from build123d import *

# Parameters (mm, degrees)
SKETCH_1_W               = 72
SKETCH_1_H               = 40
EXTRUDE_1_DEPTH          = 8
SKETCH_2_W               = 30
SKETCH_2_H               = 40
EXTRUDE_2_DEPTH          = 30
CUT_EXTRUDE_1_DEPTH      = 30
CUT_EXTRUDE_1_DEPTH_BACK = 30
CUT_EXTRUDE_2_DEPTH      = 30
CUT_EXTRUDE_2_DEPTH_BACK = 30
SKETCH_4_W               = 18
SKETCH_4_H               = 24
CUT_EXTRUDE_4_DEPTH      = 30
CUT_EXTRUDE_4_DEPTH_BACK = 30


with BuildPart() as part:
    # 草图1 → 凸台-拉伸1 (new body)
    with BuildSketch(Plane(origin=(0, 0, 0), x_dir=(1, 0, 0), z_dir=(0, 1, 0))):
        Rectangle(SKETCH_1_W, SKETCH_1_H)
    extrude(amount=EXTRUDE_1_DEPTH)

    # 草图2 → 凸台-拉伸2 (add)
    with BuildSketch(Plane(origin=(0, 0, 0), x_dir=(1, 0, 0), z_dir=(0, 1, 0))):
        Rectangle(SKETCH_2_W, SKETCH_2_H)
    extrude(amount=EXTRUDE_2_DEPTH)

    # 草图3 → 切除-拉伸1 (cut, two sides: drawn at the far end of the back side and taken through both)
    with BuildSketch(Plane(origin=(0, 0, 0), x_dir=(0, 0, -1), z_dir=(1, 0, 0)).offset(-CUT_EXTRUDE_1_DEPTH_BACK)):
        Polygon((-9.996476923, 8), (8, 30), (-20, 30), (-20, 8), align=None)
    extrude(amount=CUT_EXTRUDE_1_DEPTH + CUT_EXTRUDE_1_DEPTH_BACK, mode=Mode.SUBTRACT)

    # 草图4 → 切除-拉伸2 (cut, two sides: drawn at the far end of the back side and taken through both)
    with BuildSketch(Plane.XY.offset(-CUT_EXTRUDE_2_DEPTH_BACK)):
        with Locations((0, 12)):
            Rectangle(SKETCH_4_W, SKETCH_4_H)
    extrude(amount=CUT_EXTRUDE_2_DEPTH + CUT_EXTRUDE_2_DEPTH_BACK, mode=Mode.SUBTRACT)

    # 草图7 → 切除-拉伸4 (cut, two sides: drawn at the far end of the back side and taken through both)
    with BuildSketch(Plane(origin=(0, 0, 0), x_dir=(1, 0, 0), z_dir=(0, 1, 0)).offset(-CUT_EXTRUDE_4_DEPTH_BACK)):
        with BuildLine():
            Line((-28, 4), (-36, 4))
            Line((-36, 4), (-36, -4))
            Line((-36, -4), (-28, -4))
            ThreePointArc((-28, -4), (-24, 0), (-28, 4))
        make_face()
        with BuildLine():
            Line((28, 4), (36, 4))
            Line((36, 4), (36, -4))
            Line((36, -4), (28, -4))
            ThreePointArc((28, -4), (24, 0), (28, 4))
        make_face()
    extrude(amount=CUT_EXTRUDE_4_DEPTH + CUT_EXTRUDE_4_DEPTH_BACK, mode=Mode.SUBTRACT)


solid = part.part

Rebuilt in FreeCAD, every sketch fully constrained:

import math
import FreeCAD as App
import Part
import Sketcher
Q = App.Units.Quantity


def add_polygon(sketch, points):
    """Adds a closed chain of lines whose ends are joined by coincident constraints."""
    first, n = sketch.GeometryCount, len(points)
    for a, b in zip(points, points[1:] + points[:1]):
        sketch.addGeometry(Part.LineSegment(App.Vector(*a, 0), App.Vector(*b, 0)), False)
    for i in range(n):
        sketch.addConstraint(Sketcher.Constraint("Coincident", first + i, 2, first + (i + 1) % n, 1))

doc = App.newDocument("Part")
body = doc.addObject("PartDesign::Body", "Body")

sketch1 = body.newObject("Sketcher::SketchObject", "Sketch")
sketch1.AttachmentSupport = (doc.getObject("XZ_Plane"), [""])
sketch1.MapMode = "FlatFace"
add_polygon(sketch1, [(-36, -20), (-36, 20), (36, 20), (36, -20)])
sketch1.addConstraint([
    Sketcher.Constraint("Vertical", 0),
    Sketcher.Constraint("Horizontal", 1),
    Sketcher.Constraint("Vertical", 2),
    Sketcher.Constraint("Horizontal", 3),
    Sketcher.Constraint("Symmetric", 0, 2, 2, 2, -1, 1),
    Sketcher.Constraint("DistanceX", 1, 1, 1, 2, Q("72 mm")),
    Sketcher.Constraint("DistanceY", 0, 1, 0, 2, Q("40 mm")),
])
pad1 = body.newObject("PartDesign::Pad", "Pad")
pad1.Profile = sketch1
pad1.Length = 8
pad1.Reversed = True

sketch2 = body.newObject("Sketcher::SketchObject", "Sketch001")
sketch2.AttachmentSupport = (doc.getObject("XZ_Plane"), [""])
sketch2.MapMode = "FlatFace"
add_polygon(sketch2, [(-15, -20), (-15, 20), (15, 20), (15, -20)])
sketch2.addConstraint([
    Sketcher.Constraint("Vertical", 0),
    Sketcher.Constraint("Horizontal", 1),
    Sketcher.Constraint("Vertical", 2),
    Sketcher.Constraint("Horizontal", 3),
    Sketcher.Constraint("Symmetric", 0, 2, 2, 2, -1, 1),
    Sketcher.Constraint("DistanceX", 1, 1, 1, 2, Q("30 mm")),
    Sketcher.Constraint("DistanceY", 0, 1, 0, 2, Q("40 mm")),
])
pad2 = body.newObject("PartDesign::Pad", "Pad001")
pad2.Profile = sketch2
pad2.Length = 30
pad2.Reversed = True

sketch3 = body.newObject("Sketcher::SketchObject", "Sketch002")
sketch3.AttachmentSupport = (doc.getObject("YZ_Plane"), [""])
sketch3.MapMode = "FlatFace"
add_polygon(sketch3, [(8, 10), (30, -8), (30, 20), (8, 20)])
sketch3.addConstraint([
    Sketcher.Constraint("Vertical", 1),
    Sketcher.Constraint("Horizontal", 2),
    Sketcher.Constraint("Vertical", 3),
    Sketcher.Constraint("DistanceX", 2, 2, 2, 1, Q("22 mm")),
    Sketcher.Constraint("DistanceY", 1, 1, 1, 2, Q("28 mm")),
    Sketcher.Constraint("DistanceX", -1, 1, 0, 2, Q("30 mm")),
    Sketcher.Constraint("DistanceY", 0, 2, -1, 1, Q("8 mm")),
    Sketcher.Constraint("Distance", 0, Q("28.42311 mm")),
])
pocket1 = body.newObject("PartDesign::Pocket", "Pocket")
pocket1.Profile = sketch3
pocket1.Type = "ThroughAll"
pocket1.Midplane = True

sketch4 = body.newObject("Sketcher::SketchObject", "Sketch003")
sketch4.AttachmentSupport = (doc.getObject("XY_Plane"), [""])
sketch4.MapMode = "FlatFace"
add_polygon(sketch4, [(-9, 24), (-9, 0), (9, 0), (9, 24)])
sketch4.addConstraint([
    Sketcher.Constraint("Vertical", 0),
    Sketcher.Constraint("Horizontal", 1),
    Sketcher.Constraint("Vertical", 2),
    Sketcher.Constraint("Horizontal", 3),
    Sketcher.Constraint("Symmetric", 0, 2, 1, 2, -1, 1),
    Sketcher.Constraint("DistanceX", 1, 1, 1, 2, Q("18 mm")),
    Sketcher.Constraint("DistanceY", 0, 2, 0, 1, Q("24 mm")),
])
pocket2 = body.newObject("PartDesign::Pocket", "Pocket001")
pocket2.Profile = sketch4
pocket2.Type = "ThroughAll"
pocket2.Midplane = True

sketch5 = body.newObject("Sketcher::SketchObject", "Sketch004")
sketch5.AttachmentSupport = (doc.getObject("XZ_Plane"), [""])
sketch5.MapMode = "FlatFace"
sketch5.addGeometry([
    Part.LineSegment(App.Vector(-28, -4, 0), App.Vector(-36, -4, 0)),
    Part.LineSegment(App.Vector(-36, -4, 0), App.Vector(-36, 4, 0)),
    Part.LineSegment(App.Vector(-36, 4, 0), App.Vector(-28, 4, 0)),
    Part.ArcOfCircle(Part.Circle(App.Vector(-28, 0, 0), App.Vector(0, 0, 1), 4), math.radians(-90), math.radians(90)),
    Part.LineSegment(App.Vector(36, -4, 0), App.Vector(28, -4, 0)),
    Part.ArcOfCircle(Part.Circle(App.Vector(28, 0, 0), App.Vector(0, 0, 1), 4), math.radians(90), math.radians(270)),
    Part.LineSegment(App.Vector(28, 4, 0), App.Vector(36, 4, 0)),
    Part.LineSegment(App.Vector(36, 4, 0), App.Vector(36, -4, 0)),
], False)
sketch5.addConstraint([
    Sketcher.Constraint("Coincident", 0, 2, 1, 1),
    Sketcher.Constraint("Coincident", 1, 2, 2, 1),
    Sketcher.Constraint("Tangent", 2, 2, 3, 2),
    Sketcher.Constraint("Tangent", 3, 1, 0, 1),
    Sketcher.Constraint("Tangent", 4, 2, 5, 2),
    Sketcher.Constraint("Tangent", 5, 1, 6, 1),
    Sketcher.Constraint("Coincident", 6, 2, 7, 1),
    Sketcher.Constraint("Coincident", 7, 2, 4, 1),
    Sketcher.Constraint("Horizontal", 0),
    Sketcher.Constraint("Vertical", 1),
    Sketcher.Constraint("Horizontal", 2),
    Sketcher.Constraint("Horizontal", 4),
    Sketcher.Constraint("Horizontal", 6),
    Sketcher.Constraint("Vertical", 7),
    Sketcher.Constraint("Equal", 3, 5),
    Sketcher.Constraint("Symmetric", 3, 3, 5, 3, -1, 1),
    Sketcher.Constraint("Symmetric", 1, 2, 6, 2, -2),
    Sketcher.Constraint("Equal", 6, 1),
    Sketcher.Constraint("Radius", 3, Q("4 mm")),
    Sketcher.Constraint("DistanceX", 3, 3, -1, 1, Q("28 mm")),
])
pocket3 = body.newObject("PartDesign::Pocket", "Pocket002")
pocket3.Profile = sketch5
pocket3.Type = "ThroughAll"
pocket3.Midplane = True

doc.recompute()
